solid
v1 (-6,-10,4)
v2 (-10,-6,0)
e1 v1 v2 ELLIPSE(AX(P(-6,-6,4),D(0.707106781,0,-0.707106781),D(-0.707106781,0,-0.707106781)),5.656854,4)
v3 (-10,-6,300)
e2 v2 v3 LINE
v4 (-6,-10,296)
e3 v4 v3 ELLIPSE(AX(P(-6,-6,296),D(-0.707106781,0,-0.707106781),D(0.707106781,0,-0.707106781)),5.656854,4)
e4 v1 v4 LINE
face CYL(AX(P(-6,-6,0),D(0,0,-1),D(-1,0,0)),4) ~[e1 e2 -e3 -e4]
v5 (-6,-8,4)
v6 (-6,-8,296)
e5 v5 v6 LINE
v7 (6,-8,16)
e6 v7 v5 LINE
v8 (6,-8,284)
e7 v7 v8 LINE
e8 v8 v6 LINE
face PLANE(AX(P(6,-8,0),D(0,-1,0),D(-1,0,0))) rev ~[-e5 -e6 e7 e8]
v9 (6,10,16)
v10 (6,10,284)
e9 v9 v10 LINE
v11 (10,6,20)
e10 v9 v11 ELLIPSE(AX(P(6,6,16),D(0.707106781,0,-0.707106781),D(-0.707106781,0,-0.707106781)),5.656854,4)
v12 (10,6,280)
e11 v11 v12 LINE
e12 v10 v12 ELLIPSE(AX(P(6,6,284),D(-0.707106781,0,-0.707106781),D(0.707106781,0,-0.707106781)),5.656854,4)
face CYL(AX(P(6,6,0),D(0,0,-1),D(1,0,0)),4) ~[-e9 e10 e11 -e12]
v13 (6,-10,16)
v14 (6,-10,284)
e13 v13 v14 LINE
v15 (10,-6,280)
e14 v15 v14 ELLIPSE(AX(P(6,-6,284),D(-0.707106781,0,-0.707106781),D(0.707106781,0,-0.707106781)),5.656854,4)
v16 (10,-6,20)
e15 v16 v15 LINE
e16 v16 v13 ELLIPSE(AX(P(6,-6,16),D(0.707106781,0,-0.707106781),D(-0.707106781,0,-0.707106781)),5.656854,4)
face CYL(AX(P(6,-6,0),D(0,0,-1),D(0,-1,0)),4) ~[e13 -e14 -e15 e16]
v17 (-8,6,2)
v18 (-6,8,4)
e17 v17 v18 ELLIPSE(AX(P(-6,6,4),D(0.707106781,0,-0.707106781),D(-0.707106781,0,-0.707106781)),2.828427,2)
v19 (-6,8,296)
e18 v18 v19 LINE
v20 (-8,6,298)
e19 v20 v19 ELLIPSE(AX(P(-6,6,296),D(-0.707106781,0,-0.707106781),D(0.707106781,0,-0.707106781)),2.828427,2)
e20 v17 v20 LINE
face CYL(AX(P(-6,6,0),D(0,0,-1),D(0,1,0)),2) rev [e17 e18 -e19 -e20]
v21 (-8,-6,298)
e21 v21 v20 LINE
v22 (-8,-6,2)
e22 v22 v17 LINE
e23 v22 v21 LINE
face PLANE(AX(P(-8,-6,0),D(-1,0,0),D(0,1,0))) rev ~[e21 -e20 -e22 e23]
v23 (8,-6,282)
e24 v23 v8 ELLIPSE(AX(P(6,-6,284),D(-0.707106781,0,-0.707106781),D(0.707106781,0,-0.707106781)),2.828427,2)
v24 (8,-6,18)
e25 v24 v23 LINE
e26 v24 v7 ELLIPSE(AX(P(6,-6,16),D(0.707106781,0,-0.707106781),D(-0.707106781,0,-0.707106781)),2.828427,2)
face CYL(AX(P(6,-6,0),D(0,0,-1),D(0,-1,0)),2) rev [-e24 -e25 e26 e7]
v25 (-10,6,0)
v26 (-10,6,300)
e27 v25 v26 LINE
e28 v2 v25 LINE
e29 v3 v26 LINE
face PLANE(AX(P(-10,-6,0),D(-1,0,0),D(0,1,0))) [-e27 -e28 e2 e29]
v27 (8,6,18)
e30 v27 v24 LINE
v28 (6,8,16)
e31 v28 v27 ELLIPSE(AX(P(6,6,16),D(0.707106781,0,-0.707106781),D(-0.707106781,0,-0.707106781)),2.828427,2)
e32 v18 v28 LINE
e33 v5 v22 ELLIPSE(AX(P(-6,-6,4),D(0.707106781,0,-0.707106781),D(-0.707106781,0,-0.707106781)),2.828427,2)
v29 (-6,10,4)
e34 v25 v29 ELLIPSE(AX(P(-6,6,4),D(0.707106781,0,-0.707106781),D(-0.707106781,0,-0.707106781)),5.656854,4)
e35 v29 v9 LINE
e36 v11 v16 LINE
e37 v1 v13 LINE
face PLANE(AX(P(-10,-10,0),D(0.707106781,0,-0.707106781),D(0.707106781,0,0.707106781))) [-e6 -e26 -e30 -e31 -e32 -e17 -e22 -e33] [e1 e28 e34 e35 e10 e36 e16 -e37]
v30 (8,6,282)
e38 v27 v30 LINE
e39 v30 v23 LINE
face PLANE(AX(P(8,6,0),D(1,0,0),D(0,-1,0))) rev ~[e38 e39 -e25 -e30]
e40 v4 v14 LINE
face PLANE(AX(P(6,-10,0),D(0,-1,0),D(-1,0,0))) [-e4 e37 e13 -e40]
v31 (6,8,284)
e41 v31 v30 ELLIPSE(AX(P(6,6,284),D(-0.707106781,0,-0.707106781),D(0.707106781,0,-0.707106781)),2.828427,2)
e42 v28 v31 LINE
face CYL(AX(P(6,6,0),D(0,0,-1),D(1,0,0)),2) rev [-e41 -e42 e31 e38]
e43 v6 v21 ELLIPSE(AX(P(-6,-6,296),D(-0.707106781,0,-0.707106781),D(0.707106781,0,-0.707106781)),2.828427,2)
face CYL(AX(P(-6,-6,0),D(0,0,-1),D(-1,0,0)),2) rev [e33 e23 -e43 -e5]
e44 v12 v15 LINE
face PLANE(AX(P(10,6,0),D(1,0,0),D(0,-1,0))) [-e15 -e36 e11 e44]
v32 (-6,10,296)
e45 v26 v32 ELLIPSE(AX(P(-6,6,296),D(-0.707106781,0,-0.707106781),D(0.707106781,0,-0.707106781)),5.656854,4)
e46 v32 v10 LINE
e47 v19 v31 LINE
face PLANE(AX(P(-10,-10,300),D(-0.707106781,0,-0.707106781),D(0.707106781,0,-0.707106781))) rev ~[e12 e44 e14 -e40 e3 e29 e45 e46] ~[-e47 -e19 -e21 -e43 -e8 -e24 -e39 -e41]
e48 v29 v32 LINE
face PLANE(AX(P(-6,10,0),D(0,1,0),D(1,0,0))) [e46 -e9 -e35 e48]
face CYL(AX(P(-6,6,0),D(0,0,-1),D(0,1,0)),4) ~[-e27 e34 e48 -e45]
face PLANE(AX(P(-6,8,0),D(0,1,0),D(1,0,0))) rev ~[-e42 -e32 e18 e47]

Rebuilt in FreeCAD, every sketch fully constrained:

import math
import FreeCAD as App
import Part
import Sketcher
from FreeCAD import Vector
Q = App.Units.Quantity


def add_polygon(sketch, points):
    """Adds a closed chain of lines whose ends are joined by coincident constraints."""
    first, n = sketch.GeometryCount, len(points)
    for a, b in zip(points, points[1:] + points[:1]):
        sketch.addGeometry(Part.LineSegment(App.Vector(*a, 0), App.Vector(*b, 0)), False)
    for i in range(n):
        sketch.addConstraint(Sketcher.Constraint("Coincident", first + i, 2, first + (i + 1) % n, 1))

doc = App.newDocument("Part")
params = doc.addObject("Spreadsheet::Sheet", "Params")
for row, (alias, value) in enumerate([
    ("sketch1_radius", "4 mm"),
    ("sketch1_radius2", "2 mm"),
    ("pad1_length", "300 mm"),
    ("pocket1_length", "20 mm"),
], start=1):
    params.set(f"A{row}", alias)
    params.set(f"B{row}", "=" + value)
    params.setAlias(f"B{row}", alias)

body = doc.addObject("PartDesign::Body", "Body")

# Sketch on XY plane
sketch1 = body.newObject("Sketcher::SketchObject", "Sketch")
sketch1.AttachmentSupport = (doc.getObject("XY_Plane"), [""])
sketch1.MapMode = "FlatFace"
sketch1.addGeometry([
    Part.LineSegment(Vector(-10, 6, 0), Vector(-10, -6, 0)),  # 0
    Part.ArcOfCircle(Part.Circle(Vector(-6, -6, 0), Vector(0, 0, 1), 4), math.radians(180), math.radians(270)),  # 1
    Part.LineSegment(Vector(-6, -10, 0), Vector(6, -10, 0)),  # 2
    Part.ArcOfCircle(Part.Circle(Vector(6, -6, 0), Vector(0, 0, 1), 4), math.radians(-90), math.radians(0)),  # 3
    Part.LineSegment(Vector(10, -6, 0), Vector(10, 6, 0)),  # 4
    Part.ArcOfCircle(Part.Circle(Vector(6, 6, 0), Vector(0, 0, 1), 4), math.radians(0), math.radians(90)),  # 5
    Part.LineSegment(Vector(6, 10, 0), Vector(-6, 10, 0)),  # 6
    Part.ArcOfCircle(Part.Circle(Vector(-6, 6, 0), Vector(0, 0, 1), 4), math.radians(90), math.radians(180)),  # 7
    Part.ArcOfCircle(Part.Circle(Vector(-6, 6, 0), Vector(0, 0, 1), 2), math.radians(90), math.radians(180)),  # 8
    Part.LineSegment(Vector(-6, 8, 0), Vector(6, 8, 0)),  # 9
    Part.ArcOfCircle(Part.Circle(Vector(6, 6, 0), Vector(0, 0, 1), 2), math.radians(0), math.radians(90)),  # 10
    Part.LineSegment(Vector(8, 6, 0), Vector(8, -6, 0)),  # 11
    Part.ArcOfCircle(Part.Circle(Vector(6, -6, 0), Vector(0, 0, 1), 2), math.radians(-90), math.radians(0)),  # 12
    Part.LineSegment(Vector(6, -8, 0), Vector(-6, -8, 0)),  # 13
    Part.ArcOfCircle(Part.Circle(Vector(-6, -6, 0), Vector(0, 0, 1), 2), math.radians(180), math.radians(270)),  # 14
    Part.LineSegment(Vector(-8, -6, 0), Vector(-8, 6, 0)),  # 15
], False)
sketch1.addConstraint([
    Sketcher.Constraint("Tangent", 0, 2, 1, 1),
    Sketcher.Constraint("Tangent", 1, 2, 2, 1),
    Sketcher.Constraint("Tangent", 2, 2, 3, 1),
    Sketcher.Constraint("Tangent", 3, 2, 4, 1),
    Sketcher.Constraint("Tangent", 4, 2, 5, 1),
    Sketcher.Constraint("Tangent", 5, 2, 6, 1),
    Sketcher.Constraint("Tangent", 6, 2, 7, 1),
    Sketcher.Constraint("Tangent", 7, 2, 0, 1),
    Sketcher.Constraint("Tangent", 8, 1, 9, 1),
    Sketcher.Constraint("Tangent", 9, 2, 10, 2),
    Sketcher.Constraint("Tangent", 10, 1, 11, 1),
    Sketcher.Constraint("Tangent", 11, 2, 12, 2),
    Sketcher.Constraint("Tangent", 12, 1, 13, 1),
    Sketcher.Constraint("Tangent", 13, 2, 14, 2),
    Sketcher.Constraint("Tangent", 14, 1, 15, 1),
    Sketcher.Constraint("Tangent", 15, 2, 8, 2),
    Sketcher.Constraint("Vertical", 0),
    Sketcher.Constraint("Horizontal", 2),
    Sketcher.Constraint("Vertical", 4),
    Sketcher.Constraint("Horizontal", 6),
    Sketcher.Constraint("Horizontal", 9),
    Sketcher.Constraint("Vertical", 11),
    Sketcher.Constraint("Horizontal", 13),
    Sketcher.Constraint("Vertical", 15),
    Sketcher.Constraint("Coincident", 8, 3, 7, 3),
    Sketcher.Constraint("Coincident", 10, 3, 5, 3),
    Sketcher.Constraint("Coincident", 12, 3, 3, 3),
    Sketcher.Constraint("Equal", 1, 3),
    Sketcher.Constraint("Equal", 3, 5),
    Sketcher.Constraint("Equal", 5, 7),
    Sketcher.Constraint("Equal", 12, 14),
    Sketcher.Constraint("Symmetric", 1, 3, 5, 3, -1, 1),
    Sketcher.Constraint("Equal", 13, 0),
    Sketcher.Constraint("Radius", 1, Q("4 mm")),
    Sketcher.Constraint("Radius", 8, Q("2 mm")),
    Sketcher.Constraint("DistanceX", 0, 2, -1, 1, Q("10 mm")),
])
sketch1.setExpression("Constraints[33]", "Params.sketch1_radius")
sketch1.setExpression("Constraints[34]", "Params.sketch1_radius2")
pad1 = body.newObject("PartDesign::Pad", "Pad")
pad1.Profile = sketch1
pad1.setExpression("Length", "Params.pad1_length")

# Sketch on XZ plane
sketch2 = body.newObject("Sketcher::SketchObject", "Sketch001")
sketch2.AttachmentSupport = (doc.getObject("XZ_Plane"), [""])
sketch2.MapMode = "FlatFace"
sketch2.AttachmentOffset = App.Placement(Vector(0, 0, 10), App.Rotation())
add_polygon(sketch2, [(21, 31), (-10, 0), (21, 0)])  # lines 0-2
add_polygon(sketch2, [(25, 300), (-10, 300), (25, 265)])  # lines 3-5
sketch2.addConstraint([
    Sketcher.Constraint("Horizontal", 1),
    Sketcher.Constraint("Vertical", 2),
    Sketcher.Constraint("Horizontal", 3),
    Sketcher.Constraint("Vertical", 5),
    Sketcher.Constraint("PointOnObject", 0, 2, -1),
    Sketcher.Constraint("Perpendicular", 0, 4),
    Sketcher.Constraint("Vertical", 0, 2, 3, 2),
    Sketcher.Constraint("Equal", 1, 2),
    Sketcher.Constraint("DistanceX", 0, 2, -1, 1, Q("10 mm")),
    Sketcher.Constraint("DistanceY", -1, 1, 3, 2, Q("300 mm")),
    Sketcher.Constraint("DistanceX", 3, 2, 3, 1, Q("35.498 mm")),
    Sketcher.Constraint("DistanceX", 1, 1, 1, 2, Q("31.2685 mm")),
])
pocket1 = body.newObject("PartDesign::Pocket", "Pocket")
pocket1.Profile = sketch2
pocket1.setExpression("Length", "Params.pocket1_length")

doc.recompute()
